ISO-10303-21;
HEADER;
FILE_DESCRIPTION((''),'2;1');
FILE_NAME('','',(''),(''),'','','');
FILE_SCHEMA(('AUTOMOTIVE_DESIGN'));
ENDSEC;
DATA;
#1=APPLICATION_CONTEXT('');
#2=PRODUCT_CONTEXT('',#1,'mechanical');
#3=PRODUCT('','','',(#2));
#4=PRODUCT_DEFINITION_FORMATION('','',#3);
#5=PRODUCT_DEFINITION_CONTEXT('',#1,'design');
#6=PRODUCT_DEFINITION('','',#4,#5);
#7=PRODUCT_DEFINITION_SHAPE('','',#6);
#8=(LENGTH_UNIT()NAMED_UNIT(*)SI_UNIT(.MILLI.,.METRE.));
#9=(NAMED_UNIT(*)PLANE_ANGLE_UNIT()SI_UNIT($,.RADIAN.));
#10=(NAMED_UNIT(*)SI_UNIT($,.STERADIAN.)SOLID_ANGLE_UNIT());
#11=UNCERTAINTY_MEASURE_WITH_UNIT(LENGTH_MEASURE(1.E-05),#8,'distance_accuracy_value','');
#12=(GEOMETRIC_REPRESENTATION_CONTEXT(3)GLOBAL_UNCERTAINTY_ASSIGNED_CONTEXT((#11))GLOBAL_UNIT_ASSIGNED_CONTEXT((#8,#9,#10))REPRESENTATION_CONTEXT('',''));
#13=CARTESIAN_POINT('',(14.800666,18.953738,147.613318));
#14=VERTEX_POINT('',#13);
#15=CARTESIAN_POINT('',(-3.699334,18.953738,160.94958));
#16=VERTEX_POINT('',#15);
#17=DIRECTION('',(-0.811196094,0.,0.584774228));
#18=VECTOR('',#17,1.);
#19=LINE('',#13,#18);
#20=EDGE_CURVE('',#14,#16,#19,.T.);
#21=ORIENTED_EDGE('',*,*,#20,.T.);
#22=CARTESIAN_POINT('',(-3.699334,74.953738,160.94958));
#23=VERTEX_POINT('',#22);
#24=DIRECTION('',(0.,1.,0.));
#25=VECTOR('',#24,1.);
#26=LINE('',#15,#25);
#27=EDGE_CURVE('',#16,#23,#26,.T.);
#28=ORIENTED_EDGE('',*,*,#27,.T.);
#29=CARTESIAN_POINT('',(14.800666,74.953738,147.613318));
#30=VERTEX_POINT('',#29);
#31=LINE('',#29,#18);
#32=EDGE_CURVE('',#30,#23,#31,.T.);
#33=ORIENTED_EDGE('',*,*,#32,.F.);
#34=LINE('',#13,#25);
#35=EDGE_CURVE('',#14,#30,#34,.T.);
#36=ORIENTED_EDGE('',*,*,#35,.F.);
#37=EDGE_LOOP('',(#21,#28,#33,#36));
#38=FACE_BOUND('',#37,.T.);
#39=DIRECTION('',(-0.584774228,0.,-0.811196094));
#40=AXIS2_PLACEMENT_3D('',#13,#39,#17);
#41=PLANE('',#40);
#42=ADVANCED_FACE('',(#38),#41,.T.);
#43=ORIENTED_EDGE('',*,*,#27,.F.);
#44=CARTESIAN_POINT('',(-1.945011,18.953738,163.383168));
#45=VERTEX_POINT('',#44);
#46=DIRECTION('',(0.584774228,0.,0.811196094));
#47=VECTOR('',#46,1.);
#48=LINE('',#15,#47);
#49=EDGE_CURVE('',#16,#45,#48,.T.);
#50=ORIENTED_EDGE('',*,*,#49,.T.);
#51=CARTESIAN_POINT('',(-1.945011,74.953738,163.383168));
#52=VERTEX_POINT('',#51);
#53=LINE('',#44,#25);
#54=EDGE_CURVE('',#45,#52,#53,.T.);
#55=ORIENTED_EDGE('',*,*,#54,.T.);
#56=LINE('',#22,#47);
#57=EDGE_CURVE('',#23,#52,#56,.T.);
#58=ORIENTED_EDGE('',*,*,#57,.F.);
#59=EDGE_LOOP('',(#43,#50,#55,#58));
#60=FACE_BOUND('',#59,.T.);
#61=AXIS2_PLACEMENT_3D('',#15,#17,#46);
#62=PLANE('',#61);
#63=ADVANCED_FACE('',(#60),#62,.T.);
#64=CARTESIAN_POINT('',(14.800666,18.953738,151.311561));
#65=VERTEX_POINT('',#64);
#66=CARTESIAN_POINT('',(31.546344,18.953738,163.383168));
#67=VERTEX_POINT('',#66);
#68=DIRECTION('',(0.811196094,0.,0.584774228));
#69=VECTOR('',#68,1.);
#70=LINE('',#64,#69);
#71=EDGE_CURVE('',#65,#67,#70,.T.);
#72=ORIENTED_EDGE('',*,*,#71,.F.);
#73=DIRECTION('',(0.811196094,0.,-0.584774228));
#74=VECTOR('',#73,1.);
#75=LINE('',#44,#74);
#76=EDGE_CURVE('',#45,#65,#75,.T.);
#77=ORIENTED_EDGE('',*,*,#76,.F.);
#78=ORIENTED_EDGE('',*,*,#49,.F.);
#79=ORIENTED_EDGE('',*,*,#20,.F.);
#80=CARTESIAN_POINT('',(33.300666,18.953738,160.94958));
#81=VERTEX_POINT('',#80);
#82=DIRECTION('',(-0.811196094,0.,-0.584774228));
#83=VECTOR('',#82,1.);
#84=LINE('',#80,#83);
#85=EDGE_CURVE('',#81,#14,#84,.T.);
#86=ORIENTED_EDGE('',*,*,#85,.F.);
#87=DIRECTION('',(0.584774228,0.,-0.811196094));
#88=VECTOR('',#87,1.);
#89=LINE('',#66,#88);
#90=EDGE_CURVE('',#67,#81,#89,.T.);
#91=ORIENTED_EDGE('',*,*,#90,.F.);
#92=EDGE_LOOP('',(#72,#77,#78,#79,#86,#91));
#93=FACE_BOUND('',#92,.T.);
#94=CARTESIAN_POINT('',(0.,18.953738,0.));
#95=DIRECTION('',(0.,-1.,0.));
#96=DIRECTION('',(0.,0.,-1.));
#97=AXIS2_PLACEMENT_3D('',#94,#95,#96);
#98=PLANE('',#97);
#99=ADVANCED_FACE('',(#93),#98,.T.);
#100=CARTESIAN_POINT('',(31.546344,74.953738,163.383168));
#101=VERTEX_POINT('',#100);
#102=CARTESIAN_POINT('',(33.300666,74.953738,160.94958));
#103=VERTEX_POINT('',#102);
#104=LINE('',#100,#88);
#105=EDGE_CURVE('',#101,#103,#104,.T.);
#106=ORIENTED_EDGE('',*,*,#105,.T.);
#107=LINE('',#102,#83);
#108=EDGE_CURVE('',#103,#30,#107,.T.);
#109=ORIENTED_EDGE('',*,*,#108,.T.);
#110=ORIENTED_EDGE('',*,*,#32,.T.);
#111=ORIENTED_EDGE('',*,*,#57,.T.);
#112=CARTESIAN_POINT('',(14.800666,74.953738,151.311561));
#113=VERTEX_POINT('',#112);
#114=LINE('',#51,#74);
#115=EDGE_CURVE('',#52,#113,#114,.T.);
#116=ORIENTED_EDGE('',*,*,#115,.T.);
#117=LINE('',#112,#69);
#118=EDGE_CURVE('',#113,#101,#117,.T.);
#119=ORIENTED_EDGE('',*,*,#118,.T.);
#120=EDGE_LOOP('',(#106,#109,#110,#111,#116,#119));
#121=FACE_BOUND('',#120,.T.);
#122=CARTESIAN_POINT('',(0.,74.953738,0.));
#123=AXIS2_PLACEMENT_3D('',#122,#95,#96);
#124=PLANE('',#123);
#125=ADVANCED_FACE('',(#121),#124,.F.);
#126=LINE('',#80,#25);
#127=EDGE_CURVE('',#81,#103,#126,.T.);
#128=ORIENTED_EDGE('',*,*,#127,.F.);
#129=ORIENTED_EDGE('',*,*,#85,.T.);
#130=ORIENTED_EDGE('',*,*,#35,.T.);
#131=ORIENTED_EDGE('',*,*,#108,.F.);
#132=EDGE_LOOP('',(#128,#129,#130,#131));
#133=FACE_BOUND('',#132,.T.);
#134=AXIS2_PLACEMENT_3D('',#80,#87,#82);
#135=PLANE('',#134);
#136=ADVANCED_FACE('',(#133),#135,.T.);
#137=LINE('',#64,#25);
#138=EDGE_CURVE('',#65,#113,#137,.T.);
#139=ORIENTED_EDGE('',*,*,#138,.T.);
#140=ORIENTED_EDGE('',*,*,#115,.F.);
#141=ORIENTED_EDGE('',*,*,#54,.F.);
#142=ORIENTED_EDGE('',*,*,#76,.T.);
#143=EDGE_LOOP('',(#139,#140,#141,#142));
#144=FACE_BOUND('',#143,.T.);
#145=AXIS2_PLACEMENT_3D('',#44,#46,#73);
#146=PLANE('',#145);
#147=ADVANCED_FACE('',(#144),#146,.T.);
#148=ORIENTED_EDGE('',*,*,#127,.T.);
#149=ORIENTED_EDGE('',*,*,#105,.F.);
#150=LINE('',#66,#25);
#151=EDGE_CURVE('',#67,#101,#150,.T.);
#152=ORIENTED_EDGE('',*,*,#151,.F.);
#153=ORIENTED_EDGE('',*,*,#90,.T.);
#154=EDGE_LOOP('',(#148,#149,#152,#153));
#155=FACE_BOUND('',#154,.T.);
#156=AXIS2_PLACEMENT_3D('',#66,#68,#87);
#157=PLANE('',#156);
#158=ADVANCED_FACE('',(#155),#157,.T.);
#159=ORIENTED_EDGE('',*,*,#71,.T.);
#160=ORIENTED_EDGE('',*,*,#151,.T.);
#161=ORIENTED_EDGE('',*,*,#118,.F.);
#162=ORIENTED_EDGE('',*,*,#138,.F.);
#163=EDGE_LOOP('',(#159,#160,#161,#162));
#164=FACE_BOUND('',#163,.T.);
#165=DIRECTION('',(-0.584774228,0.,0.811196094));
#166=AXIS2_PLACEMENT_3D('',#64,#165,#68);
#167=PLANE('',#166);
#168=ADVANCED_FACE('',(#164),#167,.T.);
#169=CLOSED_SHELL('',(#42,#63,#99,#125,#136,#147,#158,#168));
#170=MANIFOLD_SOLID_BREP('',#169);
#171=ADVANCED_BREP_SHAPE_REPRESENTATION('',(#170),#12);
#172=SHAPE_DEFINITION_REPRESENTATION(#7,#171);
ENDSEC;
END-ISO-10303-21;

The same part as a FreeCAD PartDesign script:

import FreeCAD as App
import Part
import Sketcher
from FreeCAD import Vector


def add_polygon(sketch, points):
    """Adds a closed chain of lines whose ends are joined by coincident constraints."""
    first, n = sketch.GeometryCount, len(points)
    for a, b in zip(points, points[1:] + points[:1]):
        sketch.addGeometry(Part.LineSegment(App.Vector(*a, 0), App.Vector(*b, 0)), False)
    for i in range(n):
        sketch.addConstraint(Sketcher.Constraint("Coincident", first + i, 2, first + (i + 1) % n, 1))

doc = App.newDocument("Part")
body = doc.addObject("PartDesign::Body", "Body")

# Sketch on XZ plane
sketch1 = body.newObject("Sketcher::SketchObject", "Sketch")
sketch1.AttachmentSupport = (doc.getObject("XZ_Plane"), [""])
sketch1.MapMode = "FlatFace"
sketch1.AttachmentOffset = App.Placement(Vector(0, 0, -31.453738), App.Rotation())
add_polygon(sketch1, [(-1.9, 163.4), (14.8, 151.3), (31.5, 163.4), (33.3, 160.9), (14.8, 147.6), (-3.7, 160.9)])  # lines 0-5
sketch1.addConstraint(Sketcher.Constraint("Perpendicular", 1, 2))
sketch1.addConstraint(Sketcher.Constraint("Perpendicular", 2, 3))
sketch1.addConstraint(Sketcher.Constraint("Parallel", 0, 4))
sketch1.addConstraint(Sketcher.Constraint("Perpendicular", 4, 5))
sketch1.addConstraint(Sketcher.Constraint("Horizontal", 2, 2, 4, 2))
sketch1.addConstraint(Sketcher.Constraint("Horizontal", 1, 2, 5, 2))
sketch1.addConstraint(Sketcher.Constraint("Vertical", 0, 2, 3, 2))
sketch1.addConstraint(Sketcher.Constraint("Distance", 2, 3.0))
sketch1.addConstraint(Sketcher.Constraint("DistanceX", 4, 2, 2, 2, 37.0))
sketch1.addConstraint(Sketcher.Constraint("Distance", 3, 22.80583))
sketch1.addConstraint(Sketcher.Constraint("DistanceY", -1, 1, 0, 2, 151.311561))
sketch1.addConstraint(Sketcher.Constraint("DistanceX", 5, 2, -1, 1, 1.945011))
pad1 = body.newObject("PartDesign::Pad", "Pad")
pad1.Profile = sketch1
pad1.Type = "TwoLengths"
pad1.Length = 43.5
pad1.Length2 = 12.5
pad1.Reversed = True

doc.recompute()
